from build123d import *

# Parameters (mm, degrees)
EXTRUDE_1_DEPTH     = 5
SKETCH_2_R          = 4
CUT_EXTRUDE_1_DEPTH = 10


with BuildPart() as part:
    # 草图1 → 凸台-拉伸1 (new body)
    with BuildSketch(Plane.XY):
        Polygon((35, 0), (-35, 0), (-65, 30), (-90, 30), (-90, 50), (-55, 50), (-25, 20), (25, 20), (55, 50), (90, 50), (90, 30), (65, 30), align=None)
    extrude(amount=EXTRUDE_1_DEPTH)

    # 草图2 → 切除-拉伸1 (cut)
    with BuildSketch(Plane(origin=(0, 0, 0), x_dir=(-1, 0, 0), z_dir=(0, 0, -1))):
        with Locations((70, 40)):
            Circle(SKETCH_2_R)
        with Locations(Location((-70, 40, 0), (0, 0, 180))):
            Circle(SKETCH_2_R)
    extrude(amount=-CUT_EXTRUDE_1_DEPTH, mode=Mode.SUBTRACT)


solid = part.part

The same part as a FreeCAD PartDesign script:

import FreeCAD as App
import Part
import Sketcher
Q = App.Units.Quantity

doc = App.newDocument("Part")
body = doc.addObject("PartDesign::Body", "Body")

# Sketch on XY plane
sketch1 = body.newObject("Sketcher::SketchObject", "Sketch")
sketch1.AttachmentSupport = (doc.getObject("XY_Plane"), [""])
sketch1.MapMode = "FlatFace"
sketch1.addGeometry(Part.LineSegment(App.Vector(-35, 0, 0), App.Vector(35, 0, 0)), False)
sketch1.addGeometry(Part.LineSegment(App.Vector(35, 0, 0), App.Vector(65, 30, 0)), False)
sketch1.addGeometry(Part.LineSegment(App.Vector(65, 30, 0), App.Vector(90, 30, 0)), False)
sketch1.addGeometry(Part.LineSegment(App.Vector(90, 30, 0), App.Vector(90, 50, 0)), False)
sketch1.addGeometry(Part.LineSegment(App.Vector(90, 50, 0), App.Vector(55, 50, 0)), False)
sketch1.addGeometry(Part.LineSegment(App.Vector(55, 50, 0), App.Vector(25, 20, 0)), False)
sketch1.addGeometry(Part.LineSegment(App.Vector(25, 20, 0), App.Vector(-25, 20, 0)), False)
sketch1.addGeometry(Part.LineSegment(App.Vector(-25, 20, 0), App.Vector(-55, 50, 0)), False)
sketch1.addGeometry(Part.LineSegment(App.Vector(-55, 50, 0), App.Vector(-90, 50, 0)), False)
sketch1.addGeometry(Part.LineSegment(App.Vector(-90, 50, 0), App.Vector(-90, 30, 0)), False)
sketch1.addGeometry(Part.LineSegment(App.Vector(-90, 30, 0), App.Vector(-65, 30, 0)), False)
sketch1.addGeometry(Part.LineSegment(App.Vector(-65, 30, 0), App.Vector(-35, 0, 0)), False)
sketch1.addConstraint(Sketcher.Constraint("Coincident", 0, 2, 1, 1))
sketch1.addConstraint(Sketcher.Constraint("Coincident", 1, 2, 2, 1))
sketch1.addConstraint(Sketcher.Constraint("Coincident", 2, 2, 3, 1))
sketch1.addConstraint(Sketcher.Constraint("Coincident", 3, 2, 4, 1))
sketch1.addConstraint(Sketcher.Constraint("Coincident", 4, 2, 5, 1))
sketch1.addConstraint(Sketcher.Constraint("Coincident", 5, 2, 6, 1))
sketch1.addConstraint(Sketcher.Constraint("Coincident", 6, 2, 7, 1))
sketch1.addConstraint(Sketcher.Constraint("Coincident", 7, 2, 8, 1))
sketch1.addConstraint(Sketcher.Constraint("Coincident", 8, 2, 9, 1))
sketch1.addConstraint(Sketcher.Constraint("Coincident", 9, 2, 10, 1))
sketch1.addConstraint(Sketcher.Constraint("Coincident", 10, 2, 11, 1))
sketch1.addConstraint(Sketcher.Constraint("Coincident", 11, 2, 0, 1))
sketch1.addConstraint(Sketcher.Constraint("Horizontal", 0))
sketch1.addConstraint(Sketcher.Constraint("Horizontal", 2))
sketch1.addConstraint(Sketcher.Constraint("Vertical", 3))
sketch1.addConstraint(Sketcher.Constraint("Horizontal", 4))
sketch1.addConstraint(Sketcher.Constraint("Horizontal", 6))
sketch1.addConstraint(Sketcher.Constraint("Horizontal", 8))
sketch1.addConstraint(Sketcher.Constraint("Vertical", 9))
sketch1.addConstraint(Sketcher.Constraint("Horizontal", 10))
sketch1.addConstraint(Sketcher.Constraint("Symmetric", 0, 2, 11, 2, -1, 1))
sketch1.addConstraint(Sketcher.Constraint("Symmetric", 4, 2, 7, 2, -2))
sketch1.addConstraint(Sketcher.Constraint("Symmetric", 2, 2, 9, 2, -2))
sketch1.addConstraint(Sketcher.Constraint("Parallel", 1, 5))
sketch1.addConstraint(Sketcher.Constraint("Perpendicular", 5, 7))
sketch1.addConstraint(Sketcher.Constraint("Parallel", 7, 11))
sketch1.addConstraint(Sketcher.Constraint("Equal", 2, 10))
sketch1.addConstraint(Sketcher.Constraint("Equal", 1, 5))
sketch1.addConstraint(Sketcher.Constraint("DistanceX", 0, 1, 0, 2, Q("70 mm")))
sketch1.addConstraint(Sketcher.Constraint("DistanceX", 2, 1, 2, 2, Q("25 mm")))
sketch1.addConstraint(Sketcher.Constraint("DistanceX", 4, 2, 4, 1, Q("35 mm")))
sketch1.addConstraint(Sketcher.Constraint("DistanceY", 3, 1, 3, 2, Q("20 mm")))
sketch1.addConstraint(Sketcher.Constraint("DistanceX", -1, 1, 1, 2, Q("65 mm")))
pad1 = body.newObject("PartDesign::Pad", "Pad")
pad1.Profile = sketch1
pad1.Length = 5

# Sketch on XY plane
sketch2 = body.newObject("Sketcher::SketchObject", "Sketch001")
sketch2.AttachmentSupport = (doc.getObject("XY_Plane"), [""])
sketch2.MapMode = "FlatFace"
sketch2.addGeometry(Part.Circle(App.Vector(-70, 40, 0), App.Vector(0, 0, 1), 4), False)
sketch2.addGeometry(Part.Circle(App.Vector(70, 40, 0), App.Vector(0, 0, 1), 4), False)
sketch2.addConstraint(Sketcher.Constraint("Equal", 0, 1))
sketch2.addConstraint(Sketcher.Constraint("Symmetric", 0, 3, 1, 3, -2))
sketch2.addConstraint(Sketcher.Constraint("Diameter", 0, Q("8 mm")))
sketch2.addConstraint(Sketcher.Constraint("DistanceX", 0, 3, -1, 1, Q("70 mm")))
sketch2.addConstraint(Sketcher.Constraint("DistanceY", -1, 1, 0, 3, Q("40 mm")))
pocket1 = body.newObject("PartDesign::Pocket", "Pocket")
pocket1.Profile = sketch2
pocket1.Length = 10
pocket1.Reversed = True

doc.recompute()
